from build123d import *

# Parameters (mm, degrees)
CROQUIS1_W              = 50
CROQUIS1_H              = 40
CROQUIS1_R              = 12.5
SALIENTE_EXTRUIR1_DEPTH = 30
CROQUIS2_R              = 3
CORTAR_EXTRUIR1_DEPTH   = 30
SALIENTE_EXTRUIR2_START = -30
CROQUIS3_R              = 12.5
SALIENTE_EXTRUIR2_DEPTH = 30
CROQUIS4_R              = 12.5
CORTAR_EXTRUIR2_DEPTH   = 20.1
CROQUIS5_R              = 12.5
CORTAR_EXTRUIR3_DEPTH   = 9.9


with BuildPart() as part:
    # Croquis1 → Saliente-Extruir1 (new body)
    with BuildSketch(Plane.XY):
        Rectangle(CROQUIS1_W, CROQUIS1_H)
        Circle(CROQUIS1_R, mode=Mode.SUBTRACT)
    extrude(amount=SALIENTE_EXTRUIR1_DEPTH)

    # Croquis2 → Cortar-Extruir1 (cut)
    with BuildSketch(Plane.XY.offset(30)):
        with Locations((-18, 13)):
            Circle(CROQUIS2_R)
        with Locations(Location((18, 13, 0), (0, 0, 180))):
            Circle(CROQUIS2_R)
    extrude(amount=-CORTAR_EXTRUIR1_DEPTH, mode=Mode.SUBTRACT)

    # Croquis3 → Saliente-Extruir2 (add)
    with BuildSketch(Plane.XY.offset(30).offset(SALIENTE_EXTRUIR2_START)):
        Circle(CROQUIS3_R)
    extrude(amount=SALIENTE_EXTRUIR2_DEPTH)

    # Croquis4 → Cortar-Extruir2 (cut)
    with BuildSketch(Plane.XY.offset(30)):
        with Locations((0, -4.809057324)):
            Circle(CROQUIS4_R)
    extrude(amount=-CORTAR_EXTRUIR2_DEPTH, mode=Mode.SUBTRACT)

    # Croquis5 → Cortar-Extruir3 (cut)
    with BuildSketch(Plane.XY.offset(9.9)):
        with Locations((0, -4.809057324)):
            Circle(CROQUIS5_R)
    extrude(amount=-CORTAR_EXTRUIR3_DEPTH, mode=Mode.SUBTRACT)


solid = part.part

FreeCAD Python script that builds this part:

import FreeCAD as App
import Part
import Sketcher
from FreeCAD import Vector
Q = App.Units.Quantity

doc = App.newDocument("Part")
params = doc.addObject("Spreadsheet::Sheet", "Params")
for row, (alias, value) in enumerate([
    ("sketch1_diameter", "25 mm"),
    ("sketch1_width", "50 mm"),
    ("sketch1_height", "40 mm"),
    ("pad1_length", "30 mm"),
    ("sketch2_diameter", "6 mm"),
    ("pocket1_length", "30 mm"),
    ("sketch3_diameter", "25 mm"),
    ("pad2_length", "30 mm"),
    ("sketch4_diameter", "25 mm"),
    ("pocket2_length", "20.1 mm"),
    ("sketch5_diameter", "25 mm"),
    ("pocket3_length", "9.9 mm"),
], start=1):
    params.set(f"A{row}", alias)
    params.set(f"B{row}", "=" + value)
    params.setAlias(f"B{row}", alias)

body = doc.addObject("PartDesign::Body", "Body")

# Sketch on XY plane
sketch1 = body.newObject("Sketcher::SketchObject", "Sketch")
sketch1.AttachmentSupport = (doc.getObject("XY_Plane"), [""])
sketch1.MapMode = "FlatFace"
sketch1.addGeometry(Part.LineSegment(Vector(-25, 20, 0), Vector(-25, -20, 0)), False)
sketch1.addGeometry(Part.LineSegment(Vector(-25, -20, 0), Vector(25, -20, 0)), False)
sketch1.addGeometry(Part.LineSegment(Vector(25, -20, 0), Vector(25, 20, 0)), False)
sketch1.addGeometry(Part.LineSegment(Vector(25, 20, 0), Vector(-25, 20, 0)), False)
sketch1.addGeometry(Part.Circle(Vector(0, 0, 0), Vector(0, 0, 1), 12), False)
sketch1.addConstraint(Sketcher.Constraint("Coincident", 0, 2, 1, 1))
sketch1.addConstraint(Sketcher.Constraint("Coincident", 1, 2, 2, 1))
sketch1.addConstraint(Sketcher.Constraint("Coincident", 2, 2, 3, 1))
sketch1.addConstraint(Sketcher.Constraint("Coincident", 3, 2, 0, 1))
sketch1.addConstraint(Sketcher.Constraint("Vertical", 0))
sketch1.addConstraint(Sketcher.Constraint("Horizontal", 1))
sketch1.addConstraint(Sketcher.Constraint("Vertical", 2))
sketch1.addConstraint(Sketcher.Constraint("Horizontal", 3))
sketch1.addConstraint(Sketcher.Constraint("Coincident", 4, 3, -1, 1))
sketch1.addConstraint(Sketcher.Constraint("Symmetric", 0, 2, 2, 2, -1, 1))
sketch1.addConstraint(Sketcher.Constraint("Diameter", 4, Q("25 mm")))
sketch1.addConstraint(Sketcher.Constraint("DistanceX", 1, 1, 1, 2, Q("50 mm")))
sketch1.addConstraint(Sketcher.Constraint("DistanceY", 0, 2, 0, 1, Q("40 mm")))
sketch1.setExpression("Constraints[10]", "Params.sketch1_diameter")
sketch1.setExpression("Constraints[11]", "Params.sketch1_width")
sketch1.setExpression("Constraints[12]", "Params.sketch1_height")
pad1 = body.newObject("PartDesign::Pad", "Pad")
pad1.Profile = sketch1
pad1.setExpression("Length", "Params.pad1_length")

# Sketch on XY plane
sketch2 = body.newObject("Sketcher::SketchObject", "Sketch001")
sketch2.AttachmentSupport = (doc.getObject("XY_Plane"), [""])
sketch2.MapMode = "FlatFace"
sketch2.AttachmentOffset = App.Placement(Vector(0, 0, 30), App.Rotation())
sketch2.addGeometry(Part.Circle(Vector(-18, 13, 0), Vector(0, 0, 1), 3), False)
sketch2.addGeometry(Part.Circle(Vector(18, 13, 0), Vector(0, 0, 1), 3), False)
sketch2.addConstraint(Sketcher.Constraint("Equal", 0, 1))
sketch2.addConstraint(Sketcher.Constraint("Symmetric", 0, 3, 1, 3, -2))
sketch2.addConstraint(Sketcher.Constraint("Diameter", 0, Q("6 mm")))
sketch2.addConstraint(Sketcher.Constraint("DistanceX", 0, 3, -1, 1, Q("18 mm")))
sketch2.addConstraint(Sketcher.Constraint("DistanceY", -1, 1, 0, 3, Q("13 mm")))
sketch2.setExpression("Constraints[2]", "Params.sketch2_diameter")
pocket1 = body.newObject("PartDesign::Pocket", "Pocket")
pocket1.Profile = sketch2
pocket1.setExpression("Length", "Params.pocket1_length")

# Sketch on XY plane
sketch3 = body.newObject("Sketcher::SketchObject", "Sketch002")
sketch3.AttachmentSupport = (doc.getObject("XY_Plane"), [""])
sketch3.MapMode = "FlatFace"
sketch3.addGeometry(Part.Circle(Vector(0, 0, 0), Vector(0, 0, 1), 12), False)
sketch3.addConstraint(Sketcher.Constraint("Coincident", 0, 3, -1, 1))
sketch3.addConstraint(Sketcher.Constraint("Diameter", 0, Q("25 mm")))
sketch3.setExpression("Constraints[1]", "Params.sketch3_diameter")
pad2 = body.newObject("PartDesign::Pad", "Pad001")
pad2.Profile = sketch3
pad2.setExpression("Length", "Params.pad2_length")

# Sketch on XY plane
sketch4 = body.newObject("Sketcher::SketchObject", "Sketch003")
sketch4.AttachmentSupport = (doc.getObject("XY_Plane"), [""])
sketch4.MapMode = "FlatFace"
sketch4.AttachmentOffset = App.Placement(Vector(0, 0, 30), App.Rotation())
sketch4.addGeometry(Part.Circle(Vector(0, -5, 0), Vector(0, 0, 1), 12), False)
sketch4.addConstraint(Sketcher.Constraint("PointOnObject", 0, 3, -2))
sketch4.addConstraint(Sketcher.Constraint("Diameter", 0, Q("25 mm")))
sketch4.addConstraint(Sketcher.Constraint("DistanceY", 0, 3, -1, 1, Q("4.809057 mm")))
sketch4.setExpression("Constraints[1]", "Params.sketch4_diameter")
pocket2 = body.newObject("PartDesign::Pocket", "Pocket001")
pocket2.Profile = sketch4
pocket2.setExpression("Length", "Params.pocket2_length")

# Sketch on XY plane
sketch5 = body.newObject("Sketcher::SketchObject", "Sketch004")
sketch5.AttachmentSupport = (doc.getObject("XY_Plane"), [""])
sketch5.MapMode = "FlatFace"
sketch5.AttachmentOffset = App.Placement(Vector(0, 0, 9.9), App.Rotation())
sketch5.addGeometry(Part.Circle(Vector(0, -5, 0), Vector(0, 0, 1), 12), False)
sketch5.addConstraint(Sketcher.Constraint("PointOnObject", 0, 3, -2))
sketch5.addConstraint(Sketcher.Constraint("Diameter", 0, Q("25 mm")))
sketch5.addConstraint(Sketcher.Constraint("DistanceY", 0, 3, -1, 1, Q("4.809057 mm")))
sketch5.setExpression("Constraints[1]", "Params.sketch5_diameter")
pocket3 = body.newObject("PartDesign::Pocket", "Pocket002")
pocket3.Profile = sketch5
pocket3.setExpression("Length", "Params.pocket3_length")

doc.recompute()
